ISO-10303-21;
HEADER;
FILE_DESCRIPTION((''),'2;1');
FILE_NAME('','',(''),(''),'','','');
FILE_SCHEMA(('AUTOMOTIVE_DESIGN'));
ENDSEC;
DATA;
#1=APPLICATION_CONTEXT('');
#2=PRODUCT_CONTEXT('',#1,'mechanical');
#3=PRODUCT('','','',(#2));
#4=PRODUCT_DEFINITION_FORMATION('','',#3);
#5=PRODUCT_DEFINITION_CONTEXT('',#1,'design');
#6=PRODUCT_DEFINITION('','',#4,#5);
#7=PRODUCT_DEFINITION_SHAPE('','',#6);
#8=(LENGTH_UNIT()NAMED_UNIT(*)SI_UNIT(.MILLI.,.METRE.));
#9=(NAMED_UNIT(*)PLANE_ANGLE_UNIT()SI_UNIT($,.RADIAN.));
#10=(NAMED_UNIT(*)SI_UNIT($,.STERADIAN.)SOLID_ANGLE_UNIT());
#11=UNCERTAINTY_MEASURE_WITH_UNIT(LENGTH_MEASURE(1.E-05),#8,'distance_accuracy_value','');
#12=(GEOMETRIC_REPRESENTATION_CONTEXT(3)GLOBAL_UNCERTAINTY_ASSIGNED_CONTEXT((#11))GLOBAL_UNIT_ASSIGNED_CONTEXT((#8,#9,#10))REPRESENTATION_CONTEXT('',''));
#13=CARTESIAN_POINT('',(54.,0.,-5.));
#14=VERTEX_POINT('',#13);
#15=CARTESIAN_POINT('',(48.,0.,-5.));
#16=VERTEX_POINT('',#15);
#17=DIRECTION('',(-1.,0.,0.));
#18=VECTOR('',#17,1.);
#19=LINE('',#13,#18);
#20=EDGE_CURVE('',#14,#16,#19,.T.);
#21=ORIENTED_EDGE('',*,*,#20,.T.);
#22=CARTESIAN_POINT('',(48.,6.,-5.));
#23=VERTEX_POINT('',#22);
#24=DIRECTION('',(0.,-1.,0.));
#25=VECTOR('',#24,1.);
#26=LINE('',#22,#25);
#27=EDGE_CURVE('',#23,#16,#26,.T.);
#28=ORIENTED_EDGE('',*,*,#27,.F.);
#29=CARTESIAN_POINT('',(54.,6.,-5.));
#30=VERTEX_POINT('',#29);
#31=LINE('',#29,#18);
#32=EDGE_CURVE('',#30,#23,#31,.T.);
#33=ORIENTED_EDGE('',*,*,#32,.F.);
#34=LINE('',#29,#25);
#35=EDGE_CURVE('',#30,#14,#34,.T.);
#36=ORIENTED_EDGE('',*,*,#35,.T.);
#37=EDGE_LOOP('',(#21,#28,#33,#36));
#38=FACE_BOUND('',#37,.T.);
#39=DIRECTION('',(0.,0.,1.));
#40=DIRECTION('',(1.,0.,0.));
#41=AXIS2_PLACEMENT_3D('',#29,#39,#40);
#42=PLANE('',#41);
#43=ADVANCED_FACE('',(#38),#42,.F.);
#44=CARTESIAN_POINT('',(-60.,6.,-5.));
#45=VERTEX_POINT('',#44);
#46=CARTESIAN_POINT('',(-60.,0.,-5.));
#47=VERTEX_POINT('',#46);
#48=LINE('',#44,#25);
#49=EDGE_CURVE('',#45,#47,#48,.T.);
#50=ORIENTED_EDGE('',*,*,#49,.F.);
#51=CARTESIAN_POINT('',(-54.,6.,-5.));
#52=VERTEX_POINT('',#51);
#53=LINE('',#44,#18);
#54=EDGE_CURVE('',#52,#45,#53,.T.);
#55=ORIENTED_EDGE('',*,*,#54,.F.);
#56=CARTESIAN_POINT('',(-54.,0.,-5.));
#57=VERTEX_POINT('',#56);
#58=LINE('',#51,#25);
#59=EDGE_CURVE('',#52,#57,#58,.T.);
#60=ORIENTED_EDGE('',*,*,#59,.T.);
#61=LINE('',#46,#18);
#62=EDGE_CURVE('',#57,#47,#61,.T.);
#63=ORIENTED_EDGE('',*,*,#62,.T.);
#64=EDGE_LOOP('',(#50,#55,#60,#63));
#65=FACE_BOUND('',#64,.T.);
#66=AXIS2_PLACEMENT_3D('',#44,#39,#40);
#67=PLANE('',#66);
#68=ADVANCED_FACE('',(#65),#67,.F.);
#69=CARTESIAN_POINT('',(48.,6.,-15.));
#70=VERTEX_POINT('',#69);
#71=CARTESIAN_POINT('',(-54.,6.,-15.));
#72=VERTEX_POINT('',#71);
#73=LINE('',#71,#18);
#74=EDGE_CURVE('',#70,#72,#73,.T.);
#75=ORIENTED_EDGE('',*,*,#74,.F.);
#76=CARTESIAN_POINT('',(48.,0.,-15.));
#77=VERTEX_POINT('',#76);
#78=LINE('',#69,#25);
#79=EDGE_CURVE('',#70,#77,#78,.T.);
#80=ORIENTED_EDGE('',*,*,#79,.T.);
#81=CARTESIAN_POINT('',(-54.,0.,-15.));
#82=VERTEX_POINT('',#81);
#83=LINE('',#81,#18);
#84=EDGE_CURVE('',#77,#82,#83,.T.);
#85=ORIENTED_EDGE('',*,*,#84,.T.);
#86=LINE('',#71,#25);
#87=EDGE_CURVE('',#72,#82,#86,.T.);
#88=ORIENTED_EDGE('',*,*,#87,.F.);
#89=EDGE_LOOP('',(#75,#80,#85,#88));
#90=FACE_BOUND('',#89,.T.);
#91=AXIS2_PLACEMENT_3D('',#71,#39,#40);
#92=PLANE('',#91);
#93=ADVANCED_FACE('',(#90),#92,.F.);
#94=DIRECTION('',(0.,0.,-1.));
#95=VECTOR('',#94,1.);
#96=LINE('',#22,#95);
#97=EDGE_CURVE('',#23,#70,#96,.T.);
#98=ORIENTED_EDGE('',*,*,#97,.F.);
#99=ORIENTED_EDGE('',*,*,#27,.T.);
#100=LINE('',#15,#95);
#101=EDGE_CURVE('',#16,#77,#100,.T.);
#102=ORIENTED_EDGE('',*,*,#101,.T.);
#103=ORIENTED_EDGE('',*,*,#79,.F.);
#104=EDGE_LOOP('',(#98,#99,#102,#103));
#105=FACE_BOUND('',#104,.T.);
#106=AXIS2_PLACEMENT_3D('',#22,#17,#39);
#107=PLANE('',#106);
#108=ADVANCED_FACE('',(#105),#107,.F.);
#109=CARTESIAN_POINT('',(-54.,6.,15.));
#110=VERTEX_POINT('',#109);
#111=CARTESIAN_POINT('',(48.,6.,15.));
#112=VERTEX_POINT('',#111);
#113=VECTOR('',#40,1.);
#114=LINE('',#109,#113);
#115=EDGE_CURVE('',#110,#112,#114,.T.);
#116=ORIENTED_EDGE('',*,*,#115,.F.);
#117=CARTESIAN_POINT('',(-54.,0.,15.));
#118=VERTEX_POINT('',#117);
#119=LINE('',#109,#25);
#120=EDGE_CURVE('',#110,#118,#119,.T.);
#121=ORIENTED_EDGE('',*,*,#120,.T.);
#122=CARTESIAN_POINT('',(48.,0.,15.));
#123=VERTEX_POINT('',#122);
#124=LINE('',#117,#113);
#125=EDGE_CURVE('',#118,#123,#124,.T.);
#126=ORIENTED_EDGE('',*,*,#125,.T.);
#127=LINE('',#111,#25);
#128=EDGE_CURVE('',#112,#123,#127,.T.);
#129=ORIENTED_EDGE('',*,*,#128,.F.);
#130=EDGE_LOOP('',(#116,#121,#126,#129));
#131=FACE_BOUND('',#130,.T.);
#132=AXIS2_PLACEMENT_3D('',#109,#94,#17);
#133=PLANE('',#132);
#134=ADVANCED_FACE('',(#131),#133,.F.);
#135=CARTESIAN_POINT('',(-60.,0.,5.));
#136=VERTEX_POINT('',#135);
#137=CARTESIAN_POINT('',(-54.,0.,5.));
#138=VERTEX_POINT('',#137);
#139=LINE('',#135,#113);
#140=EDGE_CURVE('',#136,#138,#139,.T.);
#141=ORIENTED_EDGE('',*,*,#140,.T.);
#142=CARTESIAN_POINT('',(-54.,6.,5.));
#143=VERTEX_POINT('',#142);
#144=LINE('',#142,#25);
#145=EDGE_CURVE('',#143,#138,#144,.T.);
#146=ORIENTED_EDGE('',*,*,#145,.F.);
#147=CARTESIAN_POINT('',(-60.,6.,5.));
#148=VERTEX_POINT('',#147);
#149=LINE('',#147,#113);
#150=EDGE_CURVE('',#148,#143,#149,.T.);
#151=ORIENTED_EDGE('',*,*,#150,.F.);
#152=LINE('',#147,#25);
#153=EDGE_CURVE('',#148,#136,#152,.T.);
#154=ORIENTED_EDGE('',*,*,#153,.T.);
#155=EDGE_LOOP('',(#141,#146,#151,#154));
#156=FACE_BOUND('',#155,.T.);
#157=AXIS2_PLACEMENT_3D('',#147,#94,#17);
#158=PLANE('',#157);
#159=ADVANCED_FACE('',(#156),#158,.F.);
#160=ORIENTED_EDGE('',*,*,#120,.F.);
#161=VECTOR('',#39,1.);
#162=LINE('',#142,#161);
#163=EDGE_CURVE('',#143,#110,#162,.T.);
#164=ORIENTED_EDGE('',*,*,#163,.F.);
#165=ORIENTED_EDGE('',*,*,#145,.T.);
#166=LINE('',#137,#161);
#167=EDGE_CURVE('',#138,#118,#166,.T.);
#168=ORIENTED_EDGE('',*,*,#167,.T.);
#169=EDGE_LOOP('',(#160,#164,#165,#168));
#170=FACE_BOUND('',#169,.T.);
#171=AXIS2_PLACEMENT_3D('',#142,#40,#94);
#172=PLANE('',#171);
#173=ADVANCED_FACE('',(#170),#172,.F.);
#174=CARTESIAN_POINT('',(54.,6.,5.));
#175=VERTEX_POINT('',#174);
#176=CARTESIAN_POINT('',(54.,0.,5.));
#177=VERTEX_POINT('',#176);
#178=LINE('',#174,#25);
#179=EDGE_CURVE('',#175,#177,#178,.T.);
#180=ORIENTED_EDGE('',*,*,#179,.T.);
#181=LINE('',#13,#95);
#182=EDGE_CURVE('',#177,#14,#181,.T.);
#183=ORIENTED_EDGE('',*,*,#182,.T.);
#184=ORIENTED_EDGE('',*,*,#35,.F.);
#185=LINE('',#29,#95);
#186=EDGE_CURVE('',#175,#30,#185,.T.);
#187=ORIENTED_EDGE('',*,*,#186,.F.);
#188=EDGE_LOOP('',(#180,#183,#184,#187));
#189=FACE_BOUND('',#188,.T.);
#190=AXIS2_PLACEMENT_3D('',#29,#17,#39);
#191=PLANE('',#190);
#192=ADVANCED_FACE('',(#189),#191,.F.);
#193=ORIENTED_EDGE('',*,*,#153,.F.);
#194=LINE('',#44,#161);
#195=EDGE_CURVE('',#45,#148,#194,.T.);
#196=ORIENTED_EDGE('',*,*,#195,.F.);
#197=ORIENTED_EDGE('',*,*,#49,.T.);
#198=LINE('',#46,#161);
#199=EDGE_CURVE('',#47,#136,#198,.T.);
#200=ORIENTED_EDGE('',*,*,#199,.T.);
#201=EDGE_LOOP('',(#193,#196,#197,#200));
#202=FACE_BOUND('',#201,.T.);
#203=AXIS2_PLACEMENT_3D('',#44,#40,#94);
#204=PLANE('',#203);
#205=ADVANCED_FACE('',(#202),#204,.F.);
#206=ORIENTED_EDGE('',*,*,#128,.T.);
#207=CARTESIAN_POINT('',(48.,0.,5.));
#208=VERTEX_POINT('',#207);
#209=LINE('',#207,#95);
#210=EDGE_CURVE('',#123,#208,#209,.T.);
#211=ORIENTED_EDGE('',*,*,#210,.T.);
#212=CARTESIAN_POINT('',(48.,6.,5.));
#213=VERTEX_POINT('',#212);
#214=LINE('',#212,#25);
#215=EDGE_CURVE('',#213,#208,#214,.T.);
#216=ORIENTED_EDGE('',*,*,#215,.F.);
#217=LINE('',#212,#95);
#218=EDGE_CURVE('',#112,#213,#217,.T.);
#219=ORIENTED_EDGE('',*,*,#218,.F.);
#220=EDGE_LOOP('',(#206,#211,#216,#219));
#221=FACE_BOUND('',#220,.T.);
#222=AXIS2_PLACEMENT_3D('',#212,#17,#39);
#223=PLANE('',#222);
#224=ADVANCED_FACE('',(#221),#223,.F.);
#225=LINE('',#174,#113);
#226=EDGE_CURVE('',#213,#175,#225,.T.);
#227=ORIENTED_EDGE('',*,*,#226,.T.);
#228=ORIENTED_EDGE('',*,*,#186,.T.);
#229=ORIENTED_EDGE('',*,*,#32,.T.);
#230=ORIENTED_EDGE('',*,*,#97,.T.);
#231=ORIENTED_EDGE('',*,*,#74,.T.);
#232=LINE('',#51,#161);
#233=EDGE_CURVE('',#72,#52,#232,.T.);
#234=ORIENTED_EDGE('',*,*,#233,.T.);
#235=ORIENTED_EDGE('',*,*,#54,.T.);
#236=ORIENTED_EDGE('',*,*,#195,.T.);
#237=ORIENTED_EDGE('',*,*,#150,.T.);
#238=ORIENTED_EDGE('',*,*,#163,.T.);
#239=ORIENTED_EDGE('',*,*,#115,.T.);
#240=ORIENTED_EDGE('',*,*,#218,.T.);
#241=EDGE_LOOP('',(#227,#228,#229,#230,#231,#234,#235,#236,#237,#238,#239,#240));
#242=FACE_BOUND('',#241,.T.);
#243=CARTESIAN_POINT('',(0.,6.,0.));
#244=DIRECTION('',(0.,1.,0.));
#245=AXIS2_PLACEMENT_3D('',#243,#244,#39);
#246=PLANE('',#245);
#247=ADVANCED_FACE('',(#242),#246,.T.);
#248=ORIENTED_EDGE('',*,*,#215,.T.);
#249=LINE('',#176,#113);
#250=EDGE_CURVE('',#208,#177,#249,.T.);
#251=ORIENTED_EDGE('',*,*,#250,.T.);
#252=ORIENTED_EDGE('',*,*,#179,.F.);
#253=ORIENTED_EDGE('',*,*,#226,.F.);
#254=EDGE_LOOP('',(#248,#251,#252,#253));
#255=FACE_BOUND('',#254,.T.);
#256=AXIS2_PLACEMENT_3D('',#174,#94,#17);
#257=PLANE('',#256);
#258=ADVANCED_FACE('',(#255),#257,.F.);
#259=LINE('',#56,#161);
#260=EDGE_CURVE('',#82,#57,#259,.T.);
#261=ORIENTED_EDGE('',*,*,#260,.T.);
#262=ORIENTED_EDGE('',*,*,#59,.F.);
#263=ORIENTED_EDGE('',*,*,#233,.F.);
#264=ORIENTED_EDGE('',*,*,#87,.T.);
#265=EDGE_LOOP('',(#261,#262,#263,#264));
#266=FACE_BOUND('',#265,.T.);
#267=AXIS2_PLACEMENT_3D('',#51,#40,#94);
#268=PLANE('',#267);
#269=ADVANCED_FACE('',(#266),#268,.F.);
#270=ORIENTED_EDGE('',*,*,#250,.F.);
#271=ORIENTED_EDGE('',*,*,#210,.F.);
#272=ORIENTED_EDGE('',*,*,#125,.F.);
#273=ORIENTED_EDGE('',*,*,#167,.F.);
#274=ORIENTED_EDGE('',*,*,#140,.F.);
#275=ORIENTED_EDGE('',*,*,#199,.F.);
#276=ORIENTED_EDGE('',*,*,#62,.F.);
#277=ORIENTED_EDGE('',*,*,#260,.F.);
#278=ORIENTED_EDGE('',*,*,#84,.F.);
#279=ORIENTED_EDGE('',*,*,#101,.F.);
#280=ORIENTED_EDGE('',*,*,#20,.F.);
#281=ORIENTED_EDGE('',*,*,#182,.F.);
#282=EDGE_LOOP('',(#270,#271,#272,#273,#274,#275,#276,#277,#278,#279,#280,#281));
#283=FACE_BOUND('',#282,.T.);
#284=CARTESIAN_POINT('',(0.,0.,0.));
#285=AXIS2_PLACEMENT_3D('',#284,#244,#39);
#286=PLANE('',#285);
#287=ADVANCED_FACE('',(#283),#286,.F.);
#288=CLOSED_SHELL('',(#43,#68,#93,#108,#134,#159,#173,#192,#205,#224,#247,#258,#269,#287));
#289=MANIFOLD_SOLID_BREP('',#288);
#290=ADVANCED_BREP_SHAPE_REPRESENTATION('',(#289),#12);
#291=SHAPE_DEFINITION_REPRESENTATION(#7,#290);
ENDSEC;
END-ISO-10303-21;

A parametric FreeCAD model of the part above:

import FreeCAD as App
import Part
import Sketcher
from FreeCAD import Vector
Q = App.Units.Quantity


def add_polygon(sketch, points):
    """Adds a closed chain of lines whose ends are joined by coincident constraints."""
    first, n = sketch.GeometryCount, len(points)
    for a, b in zip(points, points[1:] + points[:1]):
        sketch.addGeometry(Part.LineSegment(App.Vector(*a, 0), App.Vector(*b, 0)), False)
    for i in range(n):
        sketch.addConstraint(Sketcher.Constraint("Coincident", first + i, 2, first + (i + 1) % n, 1))

doc = App.newDocument("Part")
body = doc.addObject("PartDesign::Body", "Body")

sketch1 = doc.addObject("Sketcher::SketchObject", "Sketch")
body.addObject(sketch1)
sketch1.AttachmentSupport = (doc.XZ_Plane, [""])
sketch1.MapMode = "FlatFace"
add_polygon(sketch1, [(-54, 15), (48, 15), (48, 5), (54, 5), (54, -5), (48, -5), (48, -15), (-54, -15), (-54, -5), (-60, -5), (-60, 5), (-54, 5)])
sketch1.addConstraint(Sketcher.Constraint("Horizontal", 0))
sketch1.addConstraint(Sketcher.Constraint("Vertical", 1))
sketch1.addConstraint(Sketcher.Constraint("Horizontal", 2))
sketch1.addConstraint(Sketcher.Constraint("Vertical", 3))
sketch1.addConstraint(Sketcher.Constraint("Horizontal", 4))
sketch1.addConstraint(Sketcher.Constraint("Vertical", 5))
sketch1.addConstraint(Sketcher.Constraint("Horizontal", 6))
sketch1.addConstraint(Sketcher.Constraint("Vertical", 7))
sketch1.addConstraint(Sketcher.Constraint("Horizontal", 8))
sketch1.addConstraint(Sketcher.Constraint("Vertical", 9))
sketch1.addConstraint(Sketcher.Constraint("Horizontal", 10))
sketch1.addConstraint(Sketcher.Constraint("Vertical", 11))
sketch1.addConstraint(Sketcher.Constraint("Symmetric", 2, 2, 7, 2, -1, 1))
sketch1.addConstraint(Sketcher.Constraint("Symmetric", 3, 2, 10, 2, -1, 1))
sketch1.addConstraint(Sketcher.Constraint("Symmetric", 1, 2, 4, 2, -1))
sketch1.addConstraint(Sketcher.Constraint("Equal", 4, 8))
sketch1.addConstraint(Sketcher.Constraint("Equal", 1, 3))
sketch1.addConstraint(Sketcher.Constraint("Equal", 3, 5))
sketch1.addConstraint(Sketcher.Constraint("DistanceX", 0, 1, 0, 2, Q("102 mm")))
sketch1.addConstraint(Sketcher.Constraint("DistanceX", 2, 1, 2, 2, Q("6 mm")))
sketch1.addConstraint(Sketcher.Constraint("DistanceY", 1, 2, 1, 1, Q("10 mm")))
pad1 = doc.addObject("PartDesign::Pad", "Pad")
body.addObject(pad1)
pad1.Profile = sketch1
pad1.Length = 6
pad1.Reversed = True

doc.recompute()
